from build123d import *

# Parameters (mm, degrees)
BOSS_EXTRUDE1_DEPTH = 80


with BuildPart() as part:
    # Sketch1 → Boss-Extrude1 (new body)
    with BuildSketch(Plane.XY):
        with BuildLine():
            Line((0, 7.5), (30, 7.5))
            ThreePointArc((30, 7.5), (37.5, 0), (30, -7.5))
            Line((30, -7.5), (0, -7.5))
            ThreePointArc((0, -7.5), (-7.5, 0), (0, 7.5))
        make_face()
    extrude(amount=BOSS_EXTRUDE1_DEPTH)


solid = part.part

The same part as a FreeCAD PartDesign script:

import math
import FreeCAD as App
import Part
import Sketcher

V = App.Vector
Q = App.Units.Quantity

doc = App.newDocument("Part")
body = doc.addObject("PartDesign::Body", "Body")

# Sketch on XY plane
sketch1 = body.newObject("Sketcher::SketchObject", "Sketch")
sketch1.AttachmentSupport = (doc.getObject("XY_Plane"), [""])
sketch1.MapMode = "FlatFace"
sketch1.addGeometry(Part.LineSegment(V(30, 8, 0), V(0, 8, 0)), False)
sketch1.addGeometry(Part.ArcOfCircle(Part.Circle(V(0, 0, 0), V(0, 0, 1), 8), math.radians(90), math.radians(270)), False)
sketch1.addGeometry(Part.LineSegment(V(0, -8, 0), V(30, -8, 0)), False)
sketch1.addGeometry(Part.ArcOfCircle(Part.Circle(V(30, 0, 0), V(0, 0, 1), 8), math.radians(-90), math.radians(90)), False)
sketch1.addConstraint(Sketcher.Constraint("Tangent", 0, 2, 1, 1))
sketch1.addConstraint(Sketcher.Constraint("Tangent", 1, 2, 2, 1))
sketch1.addConstraint(Sketcher.Constraint("Tangent", 2, 2, 3, 1))
sketch1.addConstraint(Sketcher.Constraint("Tangent", 3, 2, 0, 1))
sketch1.addConstraint(Sketcher.Constraint("Horizontal", 0))
sketch1.addConstraint(Sketcher.Constraint("Horizontal", 2))
sketch1.addConstraint(Sketcher.Constraint("Coincident", 1, 3, -1, 1))
sketch1.addConstraint(Sketcher.Constraint("Radius", 1, Q("7.5 mm")))
sketch1.addConstraint(Sketcher.Constraint("DistanceX", 0, 2, 0, 1, Q("30 mm")))
pad1 = body.newObject("PartDesign::Pad", "Pad")
pad1.Profile = sketch1
pad1.Length = 80

doc.recompute()
